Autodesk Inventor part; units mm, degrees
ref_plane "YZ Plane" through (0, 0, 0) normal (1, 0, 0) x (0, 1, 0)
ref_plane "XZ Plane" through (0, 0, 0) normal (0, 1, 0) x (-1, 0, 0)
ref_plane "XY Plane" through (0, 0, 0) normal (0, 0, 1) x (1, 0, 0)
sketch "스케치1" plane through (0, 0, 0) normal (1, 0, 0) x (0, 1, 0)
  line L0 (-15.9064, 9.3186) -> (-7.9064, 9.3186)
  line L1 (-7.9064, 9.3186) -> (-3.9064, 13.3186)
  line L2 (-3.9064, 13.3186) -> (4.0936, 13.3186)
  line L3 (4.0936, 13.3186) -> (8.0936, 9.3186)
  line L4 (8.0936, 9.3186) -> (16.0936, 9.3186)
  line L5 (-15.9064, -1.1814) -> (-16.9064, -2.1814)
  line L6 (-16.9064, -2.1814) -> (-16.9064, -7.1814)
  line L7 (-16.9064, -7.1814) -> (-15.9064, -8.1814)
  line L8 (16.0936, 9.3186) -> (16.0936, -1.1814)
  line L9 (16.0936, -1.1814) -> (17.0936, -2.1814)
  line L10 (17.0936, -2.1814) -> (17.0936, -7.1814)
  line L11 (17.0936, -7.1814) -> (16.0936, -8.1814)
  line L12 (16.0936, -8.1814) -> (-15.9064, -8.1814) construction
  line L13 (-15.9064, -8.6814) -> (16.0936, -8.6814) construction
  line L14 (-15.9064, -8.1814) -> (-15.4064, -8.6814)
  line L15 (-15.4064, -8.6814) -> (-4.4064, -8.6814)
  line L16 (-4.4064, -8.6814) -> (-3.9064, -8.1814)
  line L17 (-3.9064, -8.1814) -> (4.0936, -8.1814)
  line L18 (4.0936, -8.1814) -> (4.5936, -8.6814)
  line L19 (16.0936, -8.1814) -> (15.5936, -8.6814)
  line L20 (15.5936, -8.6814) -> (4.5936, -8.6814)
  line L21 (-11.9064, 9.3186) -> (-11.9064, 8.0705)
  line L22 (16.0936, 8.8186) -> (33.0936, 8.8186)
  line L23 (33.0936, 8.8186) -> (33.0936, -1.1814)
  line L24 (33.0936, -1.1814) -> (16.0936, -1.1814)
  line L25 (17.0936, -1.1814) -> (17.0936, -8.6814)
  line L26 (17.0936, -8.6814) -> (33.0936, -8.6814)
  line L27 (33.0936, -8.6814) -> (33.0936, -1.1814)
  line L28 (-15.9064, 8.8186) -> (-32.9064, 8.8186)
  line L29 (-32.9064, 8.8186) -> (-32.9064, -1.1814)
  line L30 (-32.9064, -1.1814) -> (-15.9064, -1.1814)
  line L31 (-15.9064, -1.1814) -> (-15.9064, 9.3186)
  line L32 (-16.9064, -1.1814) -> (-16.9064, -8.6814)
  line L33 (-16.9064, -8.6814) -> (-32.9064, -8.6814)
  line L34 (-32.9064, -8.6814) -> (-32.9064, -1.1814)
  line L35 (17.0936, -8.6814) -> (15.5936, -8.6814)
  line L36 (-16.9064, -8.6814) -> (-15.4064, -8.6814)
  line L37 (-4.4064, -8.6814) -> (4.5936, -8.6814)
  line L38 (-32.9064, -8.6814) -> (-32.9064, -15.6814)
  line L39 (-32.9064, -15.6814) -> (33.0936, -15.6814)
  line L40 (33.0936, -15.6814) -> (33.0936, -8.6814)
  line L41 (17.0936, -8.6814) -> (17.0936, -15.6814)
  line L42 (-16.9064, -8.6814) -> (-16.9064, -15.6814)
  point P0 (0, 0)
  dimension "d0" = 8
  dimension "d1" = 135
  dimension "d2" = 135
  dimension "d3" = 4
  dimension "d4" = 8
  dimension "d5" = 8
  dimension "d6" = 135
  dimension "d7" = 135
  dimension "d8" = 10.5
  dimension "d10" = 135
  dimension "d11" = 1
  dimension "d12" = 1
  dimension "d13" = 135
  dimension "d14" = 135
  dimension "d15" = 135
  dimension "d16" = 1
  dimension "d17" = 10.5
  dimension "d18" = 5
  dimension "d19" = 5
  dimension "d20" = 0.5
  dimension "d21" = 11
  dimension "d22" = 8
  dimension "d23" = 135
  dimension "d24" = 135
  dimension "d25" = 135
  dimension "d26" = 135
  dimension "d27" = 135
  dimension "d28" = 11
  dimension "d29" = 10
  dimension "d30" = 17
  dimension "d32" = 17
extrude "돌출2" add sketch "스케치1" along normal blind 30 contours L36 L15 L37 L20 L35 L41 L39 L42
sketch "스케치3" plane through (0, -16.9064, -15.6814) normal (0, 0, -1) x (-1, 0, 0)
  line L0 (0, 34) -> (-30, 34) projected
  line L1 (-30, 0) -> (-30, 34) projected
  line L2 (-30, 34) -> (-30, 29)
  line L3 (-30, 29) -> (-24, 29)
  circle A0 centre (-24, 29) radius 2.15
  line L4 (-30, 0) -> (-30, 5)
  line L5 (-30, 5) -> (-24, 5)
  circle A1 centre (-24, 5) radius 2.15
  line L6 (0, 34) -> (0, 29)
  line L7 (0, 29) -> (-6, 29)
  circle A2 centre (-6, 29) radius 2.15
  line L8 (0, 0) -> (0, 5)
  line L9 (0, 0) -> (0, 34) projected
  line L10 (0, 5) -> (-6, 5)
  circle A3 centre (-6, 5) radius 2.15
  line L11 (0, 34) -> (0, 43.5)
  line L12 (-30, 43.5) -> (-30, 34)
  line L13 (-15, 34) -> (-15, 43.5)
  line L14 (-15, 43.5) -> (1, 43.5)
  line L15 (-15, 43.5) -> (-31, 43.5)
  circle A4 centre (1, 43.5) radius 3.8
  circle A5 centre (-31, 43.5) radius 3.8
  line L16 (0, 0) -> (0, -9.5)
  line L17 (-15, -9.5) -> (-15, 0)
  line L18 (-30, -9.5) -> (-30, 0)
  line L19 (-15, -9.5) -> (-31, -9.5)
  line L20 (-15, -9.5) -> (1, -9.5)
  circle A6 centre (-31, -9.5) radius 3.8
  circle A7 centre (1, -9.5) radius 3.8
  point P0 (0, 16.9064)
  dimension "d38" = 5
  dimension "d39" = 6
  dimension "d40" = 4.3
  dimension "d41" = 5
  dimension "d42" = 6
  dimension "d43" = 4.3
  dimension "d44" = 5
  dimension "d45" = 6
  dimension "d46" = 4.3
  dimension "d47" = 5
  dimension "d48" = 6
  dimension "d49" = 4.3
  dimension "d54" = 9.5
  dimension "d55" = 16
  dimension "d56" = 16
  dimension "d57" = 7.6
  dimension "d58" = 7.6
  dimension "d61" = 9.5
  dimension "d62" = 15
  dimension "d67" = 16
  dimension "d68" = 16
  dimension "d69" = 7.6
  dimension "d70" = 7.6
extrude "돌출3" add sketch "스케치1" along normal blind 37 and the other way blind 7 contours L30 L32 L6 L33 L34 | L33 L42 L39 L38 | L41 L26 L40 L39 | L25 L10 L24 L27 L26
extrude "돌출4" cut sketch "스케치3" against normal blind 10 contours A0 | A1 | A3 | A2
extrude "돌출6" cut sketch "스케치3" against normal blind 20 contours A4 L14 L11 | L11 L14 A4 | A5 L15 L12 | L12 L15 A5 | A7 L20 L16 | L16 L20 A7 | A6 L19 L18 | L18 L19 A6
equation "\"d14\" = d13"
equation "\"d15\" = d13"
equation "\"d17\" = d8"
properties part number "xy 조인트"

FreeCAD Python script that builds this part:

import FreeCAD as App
import Part
import Sketcher
from FreeCAD import Vector
Q = App.Units.Quantity


def add_polygon(sketch, points):
    """Adds a closed chain of lines whose ends are joined by coincident constraints."""
    first, n = sketch.GeometryCount, len(points)
    for a, b in zip(points, points[1:] + points[:1]):
        sketch.addGeometry(Part.LineSegment(App.Vector(*a, 0), App.Vector(*b, 0)), False)
    for i in range(n):
        sketch.addConstraint(Sketcher.Constraint("Coincident", first + i, 2, first + (i + 1) % n, 1))

doc = App.newDocument("Part")
body = doc.addObject("PartDesign::Body", "Body")

# Sketch on YZ plane
sketch1 = body.newObject("Sketcher::SketchObject", "Sketch")
sketch1.AttachmentSupport = (doc.getObject("YZ_Plane"), [""])
sketch1.MapMode = "FlatFace"
add_polygon(sketch1, [(17, -9), (-17, -9), (-17, -16), (17, -16)])  # lines 0-3
sketch1.addConstraint([
    Sketcher.Constraint("Horizontal", 0),
    Sketcher.Constraint("Vertical", 1),
    Sketcher.Constraint("Horizontal", 2),
    Sketcher.Constraint("Vertical", 3),
    Sketcher.Constraint("DistanceX", 0, 2, 0, 1, Q("34 mm")),
    Sketcher.Constraint("DistanceY", 1, 2, 1, 1, Q("7 mm")),
    Sketcher.Constraint("DistanceX", 0, 2, -1, 1, Q("16.9064 mm")),
    Sketcher.Constraint("DistanceY", 0, 2, -1, 1, Q("8.6814 mm")),
])
pad1 = body.newObject("PartDesign::Pad", "Pad")
pad1.Profile = sketch1
pad1.Length = 30

# Sketch on YZ plane
sketch2 = body.newObject("Sketcher::SketchObject", "Sketch001")
sketch2.AttachmentSupport = (doc.getObject("YZ_Plane"), [""])
sketch2.MapMode = "FlatFace"
add_polygon(sketch2, [(-17, -1), (-33, -1), (-33, -16), (-17, -16)])  # lines 0-3
add_polygon(sketch2, [(17, -16), (33, -16), (33, -1), (17, -1)])  # lines 4-7
sketch2.addConstraint([
    Sketcher.Constraint("Horizontal", 0),
    Sketcher.Constraint("Vertical", 1),
    Sketcher.Constraint("Horizontal", 2),
    Sketcher.Constraint("Vertical", 3),
    Sketcher.Constraint("Horizontal", 4),
    Sketcher.Constraint("Vertical", 5),
    Sketcher.Constraint("Horizontal", 6),
    Sketcher.Constraint("Vertical", 7),
    Sketcher.Constraint("Horizontal", 2, 2, 4, 2),
    Sketcher.Constraint("Horizontal", 3, 2, 5, 2),
    Sketcher.Constraint("Equal", 2, 4),
    Sketcher.Constraint("DistanceX", 0, 2, 0, 1, Q("16 mm")),
    Sketcher.Constraint("DistanceY", 1, 2, 1, 1, Q("14.5 mm")),
    Sketcher.Constraint("DistanceX", 2, 2, 4, 2, Q("50 mm")),
    Sketcher.Constraint("DistanceX", 0, 2, -1, 1, Q("32.9064 mm")),
    Sketcher.Constraint("DistanceY", 0, 2, -1, 1, Q("1.1814 mm")),
])
pad2 = body.newObject("PartDesign::Pad", "Pad001")
pad2.Profile = sketch2
pad2.Type = "TwoLengths"
pad2.Length = 37
pad2.Length2 = 7

# Sketch on XY plane
sketch3 = body.newObject("Sketcher::SketchObject", "Sketch002")
sketch3.AttachmentSupport = (doc.getObject("XY_Plane"), [""])
sketch3.MapMode = "FlatFace"
sketch3.AttachmentOffset = App.Placement(Vector(0, 0, -15.6814), App.Rotation())
sketch3.addGeometry([
    Part.Circle(Vector(24, 12.1, 0), Vector(0, 0, 1), 2.1),
    Part.Circle(Vector(24, -11.9, 0), Vector(0, 0, 1), 2.1),
    Part.Circle(Vector(6, -11.9, 0), Vector(0, 0, 1), 2.1),
    Part.Circle(Vector(6, 12.1, 0), Vector(0, 0, 1), 2.1),
], False)
sketch3.addConstraint([
    Sketcher.Constraint("Equal", 0, 1),
    Sketcher.Constraint("Equal", 1, 2),
    Sketcher.Constraint("Equal", 2, 3),
    Sketcher.Constraint("Horizontal", 1, 3, 2, 3),
    Sketcher.Constraint("Horizontal", 0, 3, 3, 3),
    Sketcher.Constraint("Vertical", 0, 3, 1, 3),
    Sketcher.Constraint("Vertical", 2, 3, 3, 3),
    Sketcher.Constraint("Diameter", 0, Q("4.3 mm")),
    Sketcher.Constraint("DistanceX", -1, 1, 2, 3, Q("6 mm")),
    Sketcher.Constraint("DistanceX", -1, 1, 0, 3, Q("24 mm")),
    Sketcher.Constraint("DistanceY", 1, 3, 0, 3, Q("24 mm")),
    Sketcher.Constraint("DistanceY", -1, 1, 0, 3, Q("12.0936 mm")),
])
pocket1 = body.newObject("PartDesign::Pocket", "Pocket")
pocket1.Profile = sketch3
pocket1.Length = 10
pocket1.Reversed = True

# Sketch on XY plane
sketch4 = body.newObject("Sketcher::SketchObject", "Sketch003")
sketch4.AttachmentSupport = (doc.getObject("XY_Plane"), [""])
sketch4.MapMode = "FlatFace"
sketch4.AttachmentOffset = App.Placement(Vector(0, 0, -15.6814), App.Rotation())
sketch4.addGeometry([
    Part.Circle(Vector(-1, 26.6, 0), Vector(0, 0, 1), 3.8),
    Part.Circle(Vector(31, 26.6, 0), Vector(0, 0, 1), 3.8),
    Part.Circle(Vector(-1, -26.4, 0), Vector(0, 0, 1), 3.8),
    Part.Circle(Vector(31, -26.4, 0), Vector(0, 0, 1), 3.8),
], False)
sketch4.addConstraint([
    Sketcher.Constraint("Equal", 0, 1),
    Sketcher.Constraint("Equal", 1, 2),
    Sketcher.Constraint("Equal", 2, 3),
    Sketcher.Constraint("Horizontal", 0, 3, 1, 3),
    Sketcher.Constraint("Horizontal", 2, 3, 3, 3),
    Sketcher.Constraint("Vertical", 0, 3, 2, 3),
    Sketcher.Constraint("Vertical", 1, 3, 3, 3),
    Sketcher.Constraint("Diameter", 0, Q("7.6 mm")),
    Sketcher.Constraint("DistanceX", 0, 3, -1, 1, Q("1 mm")),
    Sketcher.Constraint("DistanceX", -1, 1, 1, 3, Q("31 mm")),
    Sketcher.Constraint("DistanceY", 2, 3, 0, 3, Q("53 mm")),
    Sketcher.Constraint("DistanceY", -1, 1, 0, 3, Q("26.5936 mm")),
])
pocket2 = body.newObject("PartDesign::Pocket", "Pocket001")
pocket2.Profile = sketch4
pocket2.Length = 20
pocket2.Reversed = True

doc.recompute()
